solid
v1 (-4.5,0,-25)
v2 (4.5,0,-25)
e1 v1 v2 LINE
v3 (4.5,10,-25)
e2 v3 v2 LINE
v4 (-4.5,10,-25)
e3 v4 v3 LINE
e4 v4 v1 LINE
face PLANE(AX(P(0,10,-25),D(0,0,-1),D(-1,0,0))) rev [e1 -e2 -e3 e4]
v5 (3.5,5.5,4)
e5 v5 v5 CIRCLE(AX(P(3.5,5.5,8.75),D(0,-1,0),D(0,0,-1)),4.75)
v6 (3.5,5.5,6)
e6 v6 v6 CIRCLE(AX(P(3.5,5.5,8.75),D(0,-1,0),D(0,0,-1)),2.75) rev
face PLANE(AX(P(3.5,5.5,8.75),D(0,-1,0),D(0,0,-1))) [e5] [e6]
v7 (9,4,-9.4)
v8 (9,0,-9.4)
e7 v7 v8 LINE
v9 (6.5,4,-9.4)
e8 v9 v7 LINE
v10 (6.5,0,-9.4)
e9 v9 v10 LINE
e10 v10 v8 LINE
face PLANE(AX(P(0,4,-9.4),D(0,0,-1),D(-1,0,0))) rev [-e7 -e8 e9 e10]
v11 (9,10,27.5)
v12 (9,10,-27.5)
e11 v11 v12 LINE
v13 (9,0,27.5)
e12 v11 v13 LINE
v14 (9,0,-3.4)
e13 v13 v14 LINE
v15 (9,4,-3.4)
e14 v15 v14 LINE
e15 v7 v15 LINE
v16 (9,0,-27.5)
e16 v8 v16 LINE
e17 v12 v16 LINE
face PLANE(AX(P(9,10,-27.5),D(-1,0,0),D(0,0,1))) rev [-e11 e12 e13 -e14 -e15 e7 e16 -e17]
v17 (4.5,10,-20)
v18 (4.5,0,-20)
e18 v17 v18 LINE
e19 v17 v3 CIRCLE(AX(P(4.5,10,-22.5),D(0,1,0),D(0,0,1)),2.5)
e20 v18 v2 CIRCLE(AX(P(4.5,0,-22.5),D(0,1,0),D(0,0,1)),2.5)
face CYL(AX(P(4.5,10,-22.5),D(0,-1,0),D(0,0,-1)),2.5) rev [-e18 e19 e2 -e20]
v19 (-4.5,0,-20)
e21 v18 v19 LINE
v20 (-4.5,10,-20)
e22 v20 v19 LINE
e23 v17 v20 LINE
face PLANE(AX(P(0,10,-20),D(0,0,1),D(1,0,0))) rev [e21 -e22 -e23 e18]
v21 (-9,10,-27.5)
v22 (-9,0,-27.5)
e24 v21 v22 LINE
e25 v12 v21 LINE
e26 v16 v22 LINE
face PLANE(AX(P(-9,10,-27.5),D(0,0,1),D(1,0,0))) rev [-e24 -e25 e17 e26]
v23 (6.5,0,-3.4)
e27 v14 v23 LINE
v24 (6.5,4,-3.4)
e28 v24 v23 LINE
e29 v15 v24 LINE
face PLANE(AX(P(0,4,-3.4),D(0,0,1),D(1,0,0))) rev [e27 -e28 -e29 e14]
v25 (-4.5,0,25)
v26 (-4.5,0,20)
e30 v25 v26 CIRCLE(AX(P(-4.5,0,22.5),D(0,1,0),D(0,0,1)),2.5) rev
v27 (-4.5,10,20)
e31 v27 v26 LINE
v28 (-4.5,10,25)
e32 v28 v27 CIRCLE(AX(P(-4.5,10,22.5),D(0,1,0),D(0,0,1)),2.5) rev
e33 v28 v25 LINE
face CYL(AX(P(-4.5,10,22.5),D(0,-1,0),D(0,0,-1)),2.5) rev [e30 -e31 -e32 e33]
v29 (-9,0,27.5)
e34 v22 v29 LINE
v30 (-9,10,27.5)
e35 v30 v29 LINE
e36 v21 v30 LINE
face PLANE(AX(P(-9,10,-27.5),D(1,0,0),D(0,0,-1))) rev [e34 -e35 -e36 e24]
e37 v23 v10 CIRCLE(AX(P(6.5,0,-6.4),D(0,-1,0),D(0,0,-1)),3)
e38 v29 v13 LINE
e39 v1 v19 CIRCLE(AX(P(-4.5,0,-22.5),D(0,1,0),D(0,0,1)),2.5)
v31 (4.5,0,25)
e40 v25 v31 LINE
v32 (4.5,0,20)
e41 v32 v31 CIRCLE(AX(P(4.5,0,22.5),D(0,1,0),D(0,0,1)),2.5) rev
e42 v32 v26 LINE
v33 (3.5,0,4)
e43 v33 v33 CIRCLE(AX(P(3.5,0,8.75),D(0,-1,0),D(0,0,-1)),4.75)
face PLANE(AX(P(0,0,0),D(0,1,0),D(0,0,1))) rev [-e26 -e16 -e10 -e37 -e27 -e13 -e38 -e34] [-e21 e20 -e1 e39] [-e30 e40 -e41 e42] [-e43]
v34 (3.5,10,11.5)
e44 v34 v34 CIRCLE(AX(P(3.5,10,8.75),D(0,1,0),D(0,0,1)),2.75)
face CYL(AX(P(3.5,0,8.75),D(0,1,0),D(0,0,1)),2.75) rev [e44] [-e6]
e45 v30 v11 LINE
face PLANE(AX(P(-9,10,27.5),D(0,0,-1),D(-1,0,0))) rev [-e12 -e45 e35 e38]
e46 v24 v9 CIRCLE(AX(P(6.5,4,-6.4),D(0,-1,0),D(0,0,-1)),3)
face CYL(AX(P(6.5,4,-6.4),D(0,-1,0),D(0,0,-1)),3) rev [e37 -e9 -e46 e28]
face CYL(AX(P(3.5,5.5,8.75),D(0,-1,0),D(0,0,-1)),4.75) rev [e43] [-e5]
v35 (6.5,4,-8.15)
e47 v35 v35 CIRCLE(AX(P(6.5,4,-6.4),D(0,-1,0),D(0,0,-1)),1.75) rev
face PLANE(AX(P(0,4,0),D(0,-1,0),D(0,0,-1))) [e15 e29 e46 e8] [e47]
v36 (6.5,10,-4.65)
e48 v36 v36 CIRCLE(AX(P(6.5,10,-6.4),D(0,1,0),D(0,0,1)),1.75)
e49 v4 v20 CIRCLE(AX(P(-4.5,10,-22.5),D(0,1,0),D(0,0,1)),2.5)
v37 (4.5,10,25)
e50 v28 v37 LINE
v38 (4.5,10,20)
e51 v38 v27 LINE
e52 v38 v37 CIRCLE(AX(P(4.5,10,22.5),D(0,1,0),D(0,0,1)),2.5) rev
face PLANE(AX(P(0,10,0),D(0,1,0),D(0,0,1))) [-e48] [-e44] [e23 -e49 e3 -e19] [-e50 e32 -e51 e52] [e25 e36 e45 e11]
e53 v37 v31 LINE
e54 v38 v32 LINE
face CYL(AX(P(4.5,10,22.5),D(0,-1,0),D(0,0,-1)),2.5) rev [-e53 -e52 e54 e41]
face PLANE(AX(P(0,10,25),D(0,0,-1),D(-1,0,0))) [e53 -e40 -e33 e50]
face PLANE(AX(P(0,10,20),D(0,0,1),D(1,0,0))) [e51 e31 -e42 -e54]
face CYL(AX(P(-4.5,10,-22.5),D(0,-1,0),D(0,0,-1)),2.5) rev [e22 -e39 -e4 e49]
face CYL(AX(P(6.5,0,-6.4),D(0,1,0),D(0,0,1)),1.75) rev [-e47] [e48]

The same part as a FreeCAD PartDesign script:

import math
import FreeCAD as App
import Part
import Sketcher

doc = App.newDocument("Part")
params = doc.addObject("Spreadsheet::Sheet", "Params")
for row, (alias, value) in enumerate([
    ("sketch1_width", "18 mm"),
    ("sketch1_height", "55 mm"),
    ("pad1_length", "10 mm"),
    ("sketch2_diameter", "5.5 mm"),
    ("sketch2_diameter2", "3.5 mm"),
    ("sketch3_diameter", "9.5 mm"),
    ("pocket2_length", "5.5 mm"),
    ("sketch4_radius", "3 mm"),
    ("sketch4_diameter", "3.5 mm"),
    ("sketch4_width", "2.5 mm"),
    ("pocket3_length", "4 mm"),
    ("sketch5_radius", "2.5 mm"),
    ("sketch5_width", "9 mm"),
], start=1):
    params.set(f"A{row}", alias)
    params.set(f"B{row}", "=" + value)
    params.setAlias(f"B{row}", alias)

body = doc.addObject("PartDesign::Body", "Body")

sketch1 = body.newObject("Sketcher::SketchObject", "Sketch")
sketch1.AttachmentSupport = (doc.getObject("XZ_Plane"), [""])
sketch1.MapMode = "FlatFace"
sketch1.addGeometry(Part.LineSegment(App.Vector(-9, -28, 0), App.Vector(-9, 28, 0)), False)
sketch1.addGeometry(Part.LineSegment(App.Vector(-9, 28, 0), App.Vector(9, 28, 0)), False)
sketch1.addGeometry(Part.LineSegment(App.Vector(9, 28, 0), App.Vector(9, -28, 0)), False)
sketch1.addGeometry(Part.LineSegment(App.Vector(9, -28, 0), App.Vector(-9, -28, 0)), False)
sketch1.addConstraint(Sketcher.Constraint("Coincident", 0, 2, 1, 1))
sketch1.addConstraint(Sketcher.Constraint("Coincident", 1, 2, 2, 1))
sketch1.addConstraint(Sketcher.Constraint("Coincident", 2, 2, 3, 1))
sketch1.addConstraint(Sketcher.Constraint("Coincident", 3, 2, 0, 1))
sketch1.addConstraint(Sketcher.Constraint("Vertical", 0))
sketch1.addConstraint(Sketcher.Constraint("Horizontal", 1))
sketch1.addConstraint(Sketcher.Constraint("Vertical", 2))
sketch1.addConstraint(Sketcher.Constraint("Horizontal", 3))
sketch1.addConstraint(Sketcher.Constraint("Symmetric", 0, 2, 2, 2, -1, 1))
sketch1.addConstraint(Sketcher.Constraint("DistanceX", 1, 1, 1, 2, 18.0))
sketch1.addConstraint(Sketcher.Constraint("DistanceY", 0, 1, 0, 2, 55.0))
sketch1.setExpression("Constraints[9]", "Params.sketch1_width")
sketch1.setExpression("Constraints[10]", "Params.sketch1_height")
pad1 = body.newObject("PartDesign::Pad", "Pad")
pad1.Profile = sketch1
pad1.setExpression("Length", "Params.pad1_length")
pad1.Reversed = True

sketch2 = body.newObject("Sketcher::SketchObject", "Sketch001")
sketch2.AttachmentSupport = (doc.getObject("XZ_Plane"), [""])
sketch2.MapMode = "FlatFace"
sketch2.AttachmentOffset = App.Placement(App.Vector(0, 0, -10), App.Rotation())
sketch2.addGeometry(Part.Circle(App.Vector(3.5, 8.8, 0), App.Vector(0, 0, 1), 2.8), False)
sketch2.addGeometry(Part.Circle(App.Vector(6.5, -6.4, 0), App.Vector(0, 0, 1), 1.8), False)
sketch2.addConstraint(Sketcher.Constraint("Diameter", 0, 5.5))
sketch2.addConstraint(Sketcher.Constraint("Diameter", 1, 3.5))
sketch2.addConstraint(Sketcher.Constraint("DistanceX", 0, 3, 1, 3, 3.0))
sketch2.addConstraint(Sketcher.Constraint("DistanceX", -1, 1, 0, 3, 3.5))
sketch2.addConstraint(Sketcher.Constraint("DistanceY", 1, 3, -1, 1, 6.4))
sketch2.addConstraint(Sketcher.Constraint("DistanceY", -1, 1, 0, 3, 8.75))
sketch2.setExpression("Constraints[0]", "Params.sketch2_diameter")
sketch2.setExpression("Constraints[1]", "Params.sketch2_diameter2")
pocket1 = body.newObject("PartDesign::Pocket", "Pocket")
pocket1.Profile = sketch2
pocket1.Type = "ThroughAll"
pocket1.Reversed = True

sketch3 = body.newObject("Sketcher::SketchObject", "Sketch002")
sketch3.AttachmentSupport = (doc.getObject("XZ_Plane"), [""])
sketch3.MapMode = "FlatFace"
sketch3.addGeometry(Part.Circle(App.Vector(3.5, 8.8, 0), App.Vector(0, 0, 1), 4.8), False)
sketch3.addConstraint(Sketcher.Constraint("Diameter", 0, 9.5))
sketch3.addConstraint(Sketcher.Constraint("DistanceX", -1, 1, 0, 3, 3.5))
sketch3.addConstraint(Sketcher.Constraint("DistanceY", -1, 1, 0, 3, 8.75))
sketch3.setExpression("Constraints[0]", "Params.sketch3_diameter")
pocket2 = body.newObject("PartDesign::Pocket", "Pocket001")
pocket2.Profile = sketch3
pocket2.setExpression("Length", "Params.pocket2_length")

sketch4 = body.newObject("Sketcher::SketchObject", "Sketch003")
sketch4.AttachmentSupport = (doc.getObject("XZ_Plane"), [""])
sketch4.MapMode = "FlatFace"
sketch4.AttachmentOffset = App.Placement(App.Vector(0, 0, -4), App.Rotation())
sketch4.addGeometry(Part.ArcOfCircle(Part.Circle(App.Vector(6.5, -6.4, 0), App.Vector(0, 0, 1), 3), math.radians(90), math.radians(270)), False)
sketch4.addGeometry(Part.LineSegment(App.Vector(6.5, -9.4, 0), App.Vector(9, -9.4, 0)), False)
sketch4.addGeometry(Part.LineSegment(App.Vector(9, -9.4, 0), App.Vector(9, -3.4, 0)), False)
sketch4.addGeometry(Part.LineSegment(App.Vector(9, -3.4, 0), App.Vector(6.5, -3.4, 0)), False)
sketch4.addGeometry(Part.Circle(App.Vector(6.5, -6.4, 0), App.Vector(0, 0, 1), 1.8), False)
sketch4.addConstraint(Sketcher.Constraint("Tangent", 0, 2, 1, 1))
sketch4.addConstraint(Sketcher.Constraint("Coincident", 1, 2, 2, 1))
sketch4.addConstraint(Sketcher.Constraint("Coincident", 2, 2, 3, 1))
sketch4.addConstraint(Sketcher.Constraint("Tangent", 3, 2, 0, 1))
sketch4.addConstraint(Sketcher.Constraint("Horizontal", 1))
sketch4.addConstraint(Sketcher.Constraint("Vertical", 2))
sketch4.addConstraint(Sketcher.Constraint("Horizontal", 3))
sketch4.addConstraint(Sketcher.Constraint("Coincident", 4, 3, 0, 3))
sketch4.addConstraint(Sketcher.Constraint("Radius", 0, 3.0))
sketch4.addConstraint(Sketcher.Constraint("Diameter", 4, 3.5))
sketch4.addConstraint(Sketcher.Constraint("DistanceX", 1, 1, 1, 2, 2.5))
sketch4.addConstraint(Sketcher.Constraint("DistanceX", -1, 1, 1, 2, 9.0))
sketch4.addConstraint(Sketcher.Constraint("DistanceY", 0, 3, -1, 1, 6.4))
sketch4.setExpression("Constraints[8]", "Params.sketch4_radius")
sketch4.setExpression("Constraints[9]", "Params.sketch4_diameter")
sketch4.setExpression("Constraints[10]", "Params.sketch4_width")
pocket3 = body.newObject("PartDesign::Pocket", "Pocket002")
pocket3.Profile = sketch4
pocket3.setExpression("Length", "Params.pocket3_length")
pocket3.Reversed = True

sketch5 = body.newObject("Sketcher::SketchObject", "Sketch004")
sketch5.AttachmentSupport = (doc.getObject("XZ_Plane"), [""])
sketch5.MapMode = "FlatFace"
sketch5.addGeometry(Part.ArcOfCircle(Part.Circle(App.Vector(-4.5, -22.5, 0), App.Vector(0, 0, 1), 2.5), math.radians(90), math.radians(270)), False)
sketch5.addGeometry(Part.LineSegment(App.Vector(-4.5, -20, 0), App.Vector(4.5, -20, 0)), False)
sketch5.addGeometry(Part.ArcOfCircle(Part.Circle(App.Vector(4.5, -22.5, 0), App.Vector(0, 0, 1), 2.5), math.radians(-90), math.radians(90)), False)
sketch5.addGeometry(Part.LineSegment(App.Vector(4.5, -25, 0), App.Vector(-4.5, -25, 0)), False)
sketch5.addGeometry(Part.ArcOfCircle(Part.Circle(App.Vector(-4.5, 22.5, 0), App.Vector(0, 0, 1), 2.5), math.radians(90), math.radians(270)), False)
sketch5.addGeometry(Part.LineSegment(App.Vector(-4.5, 25, 0), App.Vector(4.5, 25, 0)), False)
sketch5.addGeometry(Part.ArcOfCircle(Part.Circle(App.Vector(4.5, 22.5, 0), App.Vector(0, 0, 1), 2.5), math.radians(-90), math.radians(90)), False)
sketch5.addGeometry(Part.LineSegment(App.Vector(4.5, 20, 0), App.Vector(-4.5, 20, 0)), False)
sketch5.addConstraint(Sketcher.Constraint("Tangent", 0, 1, 1, 1))
sketch5.addConstraint(Sketcher.Constraint("Tangent", 1, 2, 2, 2))
sketch5.addConstraint(Sketcher.Constraint("Tangent", 2, 1, 3, 1))
sketch5.addConstraint(Sketcher.Constraint("Tangent", 3, 2, 0, 2))
sketch5.addConstraint(Sketcher.Constraint("Tangent", 4, 1, 5, 1))
sketch5.addConstraint(Sketcher.Constraint("Tangent", 5, 2, 6, 2))
sketch5.addConstraint(Sketcher.Constraint("Tangent", 6, 1, 7, 1))
sketch5.addConstraint(Sketcher.Constraint("Tangent", 7, 2, 4, 2))
sketch5.addConstraint(Sketcher.Constraint("Horizontal", 1))
sketch5.addConstraint(Sketcher.Constraint("Horizontal", 3))
sketch5.addConstraint(Sketcher.Constraint("Horizontal", 5))
sketch5.addConstraint(Sketcher.Constraint("Horizontal", 7))
sketch5.addConstraint(Sketcher.Constraint("Equal", 2, 4))
sketch5.addConstraint(Sketcher.Constraint("Symmetric", 2, 3, 4, 3, -1, 1))
sketch5.addConstraint(Sketcher.Constraint("Vertical", 0, 3, 4, 3))
sketch5.addConstraint(Sketcher.Constraint("Vertical", 2, 3, 6, 3))
sketch5.addConstraint(Sketcher.Constraint("Radius", 0, 2.5))
sketch5.addConstraint(Sketcher.Constraint("DistanceX", 1, 1, 1, 2, 9.0))
sketch5.addConstraint(Sketcher.Constraint("DistanceY", 0, 1, -1, 1, 20.0))
sketch5.setExpression("Constraints[16]", "Params.sketch5_radius")
sketch5.setExpression("Constraints[17]", "Params.sketch5_width")
pocket4 = body.newObject("PartDesign::Pocket", "Pocket003")
pocket4.Profile = sketch5
pocket4.Type = "ThroughAll"

doc.recompute()
